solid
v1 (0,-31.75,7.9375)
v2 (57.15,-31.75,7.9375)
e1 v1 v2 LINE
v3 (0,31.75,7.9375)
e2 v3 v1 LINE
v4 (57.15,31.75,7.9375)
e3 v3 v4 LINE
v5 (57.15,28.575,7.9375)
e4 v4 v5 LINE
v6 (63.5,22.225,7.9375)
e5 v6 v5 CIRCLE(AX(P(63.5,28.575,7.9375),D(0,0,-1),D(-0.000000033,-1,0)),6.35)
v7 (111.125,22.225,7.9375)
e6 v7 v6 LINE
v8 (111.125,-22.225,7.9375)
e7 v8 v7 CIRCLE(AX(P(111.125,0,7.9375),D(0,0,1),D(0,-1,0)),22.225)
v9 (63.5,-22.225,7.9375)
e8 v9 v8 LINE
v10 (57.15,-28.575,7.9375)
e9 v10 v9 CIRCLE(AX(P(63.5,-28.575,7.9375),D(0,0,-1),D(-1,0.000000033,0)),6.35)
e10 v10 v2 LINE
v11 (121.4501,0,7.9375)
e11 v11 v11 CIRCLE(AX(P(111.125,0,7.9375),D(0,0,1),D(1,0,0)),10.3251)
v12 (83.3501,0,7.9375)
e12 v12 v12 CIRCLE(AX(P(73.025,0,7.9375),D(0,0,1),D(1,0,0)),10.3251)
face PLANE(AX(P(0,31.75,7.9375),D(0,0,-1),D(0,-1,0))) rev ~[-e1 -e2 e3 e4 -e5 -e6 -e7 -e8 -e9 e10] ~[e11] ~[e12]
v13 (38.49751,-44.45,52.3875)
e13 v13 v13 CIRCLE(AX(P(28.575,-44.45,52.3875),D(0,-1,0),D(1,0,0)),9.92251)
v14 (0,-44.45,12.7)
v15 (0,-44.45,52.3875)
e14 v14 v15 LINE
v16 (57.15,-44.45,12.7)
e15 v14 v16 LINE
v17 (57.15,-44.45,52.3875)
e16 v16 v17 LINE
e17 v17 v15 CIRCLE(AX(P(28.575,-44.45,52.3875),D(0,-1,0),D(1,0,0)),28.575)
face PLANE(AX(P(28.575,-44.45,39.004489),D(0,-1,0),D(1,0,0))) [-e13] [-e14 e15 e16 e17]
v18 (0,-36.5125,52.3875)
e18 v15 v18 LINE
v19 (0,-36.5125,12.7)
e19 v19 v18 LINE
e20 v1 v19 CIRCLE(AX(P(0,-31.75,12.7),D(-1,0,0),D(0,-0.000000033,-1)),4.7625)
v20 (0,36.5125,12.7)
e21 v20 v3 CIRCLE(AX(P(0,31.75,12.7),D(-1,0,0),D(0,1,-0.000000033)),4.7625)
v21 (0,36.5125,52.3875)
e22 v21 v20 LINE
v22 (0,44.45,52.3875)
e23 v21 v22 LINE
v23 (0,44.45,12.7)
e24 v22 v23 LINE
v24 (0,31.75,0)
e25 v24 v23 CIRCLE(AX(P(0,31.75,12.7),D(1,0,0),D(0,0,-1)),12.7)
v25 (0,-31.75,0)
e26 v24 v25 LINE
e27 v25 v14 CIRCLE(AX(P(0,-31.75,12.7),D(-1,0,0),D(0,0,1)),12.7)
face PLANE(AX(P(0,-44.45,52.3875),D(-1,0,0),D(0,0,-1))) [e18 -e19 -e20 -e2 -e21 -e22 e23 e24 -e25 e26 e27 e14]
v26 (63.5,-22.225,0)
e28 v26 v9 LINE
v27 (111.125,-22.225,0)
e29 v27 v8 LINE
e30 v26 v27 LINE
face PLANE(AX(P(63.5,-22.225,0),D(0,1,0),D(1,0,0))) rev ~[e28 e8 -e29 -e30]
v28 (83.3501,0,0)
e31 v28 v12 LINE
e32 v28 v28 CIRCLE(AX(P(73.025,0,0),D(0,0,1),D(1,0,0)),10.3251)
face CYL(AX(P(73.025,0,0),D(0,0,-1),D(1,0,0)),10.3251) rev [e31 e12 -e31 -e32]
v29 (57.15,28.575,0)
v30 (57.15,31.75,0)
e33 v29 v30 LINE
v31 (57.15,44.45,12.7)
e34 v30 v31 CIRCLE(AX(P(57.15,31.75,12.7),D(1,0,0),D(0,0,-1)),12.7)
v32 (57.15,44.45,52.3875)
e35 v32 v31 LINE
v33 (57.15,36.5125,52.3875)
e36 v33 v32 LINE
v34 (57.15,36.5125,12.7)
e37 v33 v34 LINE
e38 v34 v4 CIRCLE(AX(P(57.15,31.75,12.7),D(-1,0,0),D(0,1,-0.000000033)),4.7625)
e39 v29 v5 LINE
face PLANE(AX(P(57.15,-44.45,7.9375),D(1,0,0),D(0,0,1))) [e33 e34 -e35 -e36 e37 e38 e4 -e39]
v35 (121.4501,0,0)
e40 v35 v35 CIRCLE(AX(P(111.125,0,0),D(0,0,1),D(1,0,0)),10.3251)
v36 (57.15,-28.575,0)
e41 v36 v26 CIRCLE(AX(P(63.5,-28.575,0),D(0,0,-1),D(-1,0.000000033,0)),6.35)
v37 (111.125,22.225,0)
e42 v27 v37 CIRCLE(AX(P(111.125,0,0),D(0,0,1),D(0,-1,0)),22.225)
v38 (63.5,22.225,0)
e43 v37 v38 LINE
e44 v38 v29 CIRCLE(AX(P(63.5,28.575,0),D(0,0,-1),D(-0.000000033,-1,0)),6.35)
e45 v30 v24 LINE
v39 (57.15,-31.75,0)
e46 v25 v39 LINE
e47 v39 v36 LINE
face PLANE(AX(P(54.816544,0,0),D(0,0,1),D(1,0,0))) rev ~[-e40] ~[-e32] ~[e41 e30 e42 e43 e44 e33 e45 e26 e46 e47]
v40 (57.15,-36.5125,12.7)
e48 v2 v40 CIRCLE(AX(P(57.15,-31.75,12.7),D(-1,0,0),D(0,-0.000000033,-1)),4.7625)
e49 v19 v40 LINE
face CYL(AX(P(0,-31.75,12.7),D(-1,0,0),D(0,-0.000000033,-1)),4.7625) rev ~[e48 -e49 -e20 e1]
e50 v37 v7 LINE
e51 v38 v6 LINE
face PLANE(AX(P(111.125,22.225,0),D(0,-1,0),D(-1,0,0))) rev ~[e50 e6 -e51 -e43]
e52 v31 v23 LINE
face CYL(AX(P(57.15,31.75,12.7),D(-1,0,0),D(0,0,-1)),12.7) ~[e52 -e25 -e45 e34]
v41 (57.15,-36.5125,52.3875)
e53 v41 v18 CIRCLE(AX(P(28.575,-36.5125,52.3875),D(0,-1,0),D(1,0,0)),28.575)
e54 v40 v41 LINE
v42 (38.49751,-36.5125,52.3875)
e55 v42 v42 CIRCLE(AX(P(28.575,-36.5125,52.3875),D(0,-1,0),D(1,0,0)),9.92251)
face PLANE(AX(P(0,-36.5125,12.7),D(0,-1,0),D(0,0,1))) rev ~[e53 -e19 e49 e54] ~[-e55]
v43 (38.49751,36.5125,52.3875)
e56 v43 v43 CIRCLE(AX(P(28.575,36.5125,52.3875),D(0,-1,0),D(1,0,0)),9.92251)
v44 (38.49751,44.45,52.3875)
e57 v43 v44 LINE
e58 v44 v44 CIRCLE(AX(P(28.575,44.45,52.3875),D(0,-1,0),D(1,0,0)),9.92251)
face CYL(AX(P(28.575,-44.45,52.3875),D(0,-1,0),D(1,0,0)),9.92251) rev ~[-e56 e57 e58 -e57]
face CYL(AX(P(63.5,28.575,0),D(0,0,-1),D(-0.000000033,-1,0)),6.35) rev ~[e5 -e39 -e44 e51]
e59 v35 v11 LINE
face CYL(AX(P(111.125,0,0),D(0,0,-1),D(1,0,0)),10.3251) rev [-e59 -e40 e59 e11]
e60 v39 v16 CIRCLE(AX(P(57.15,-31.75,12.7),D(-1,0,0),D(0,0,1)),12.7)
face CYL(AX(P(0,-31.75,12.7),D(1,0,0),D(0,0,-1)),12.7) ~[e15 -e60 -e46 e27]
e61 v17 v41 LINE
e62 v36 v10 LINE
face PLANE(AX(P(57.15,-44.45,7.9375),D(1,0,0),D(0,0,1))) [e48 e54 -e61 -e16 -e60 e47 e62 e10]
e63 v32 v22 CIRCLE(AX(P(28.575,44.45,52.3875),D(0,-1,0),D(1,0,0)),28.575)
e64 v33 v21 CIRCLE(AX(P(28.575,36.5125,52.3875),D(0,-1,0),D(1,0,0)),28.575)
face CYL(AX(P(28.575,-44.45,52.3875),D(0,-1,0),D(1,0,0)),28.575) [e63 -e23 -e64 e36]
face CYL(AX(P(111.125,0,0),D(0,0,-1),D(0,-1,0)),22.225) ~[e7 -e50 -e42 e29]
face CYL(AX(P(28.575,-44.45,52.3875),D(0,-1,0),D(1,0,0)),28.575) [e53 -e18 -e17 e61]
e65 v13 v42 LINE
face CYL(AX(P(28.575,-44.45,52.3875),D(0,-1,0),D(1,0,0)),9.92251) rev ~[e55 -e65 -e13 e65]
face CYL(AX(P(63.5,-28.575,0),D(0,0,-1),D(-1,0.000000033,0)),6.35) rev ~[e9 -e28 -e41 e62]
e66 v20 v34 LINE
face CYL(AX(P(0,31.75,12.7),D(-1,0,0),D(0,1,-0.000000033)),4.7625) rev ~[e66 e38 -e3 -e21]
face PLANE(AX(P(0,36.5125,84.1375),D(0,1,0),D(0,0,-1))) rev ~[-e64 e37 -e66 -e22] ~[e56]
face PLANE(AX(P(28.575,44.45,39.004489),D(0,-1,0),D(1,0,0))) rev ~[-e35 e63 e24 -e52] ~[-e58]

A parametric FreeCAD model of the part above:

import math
import FreeCAD as App
import Part
import Sketcher
Q = App.Units.Quantity


def edges_at(feature, points):
    """Names of the edges that pass closest to the given points."""
    edges = feature.Shape.Edges
    near = lambda p: min(range(len(edges)), key=lambda i: edges[i].distToShape(Part.Vertex(*p))[0])
    return sorted({f"Edge{near(p) + 1}" for p in points})

doc = App.newDocument("Part")
body = doc.addObject("PartDesign::Body", "Body")

# Sketch on XY plane
sketch1 = body.newObject("Sketcher::SketchObject", "Sketch")
sketch1.AttachmentSupport = (doc.getObject("XY_Plane"), [""])
sketch1.MapMode = "FlatFace"
sketch1.addGeometry(Part.LineSegment(App.Vector(0, 44, 0), App.Vector(0, -44, 0)), False)
sketch1.addGeometry(Part.LineSegment(App.Vector(0, -44, 0), App.Vector(57, -44, 0)), False)
sketch1.addGeometry(Part.LineSegment(App.Vector(57, -44, 0), App.Vector(57, -29, 0)), False)
sketch1.addGeometry(Part.ArcOfCircle(Part.Circle(App.Vector(64, -29, 0), App.Vector(0, 0, 1), 6), math.radians(90), math.radians(180)), False)
sketch1.addGeometry(Part.LineSegment(App.Vector(64, -22, 0), App.Vector(111, -22, 0)), False)
sketch1.addGeometry(Part.ArcOfCircle(Part.Circle(App.Vector(111, 0, 0), App.Vector(0, 0, 1), 22), math.radians(-90), math.radians(90)), False)
sketch1.addGeometry(Part.LineSegment(App.Vector(111, 22, 0), App.Vector(64, 22, 0)), False)
sketch1.addGeometry(Part.ArcOfCircle(Part.Circle(App.Vector(64, 29, 0), App.Vector(0, 0, 1), 6), math.radians(-180), math.radians(-90)), False)
sketch1.addGeometry(Part.LineSegment(App.Vector(57, 29, 0), App.Vector(57, 44, 0)), False)
sketch1.addGeometry(Part.LineSegment(App.Vector(57, 44, 0), App.Vector(0, 44, 0)), False)
sketch1.addGeometry(Part.Circle(App.Vector(73, 0, 0), App.Vector(0, 0, 1), 10), False)
sketch1.addGeometry(Part.Circle(App.Vector(111, 0, 0), App.Vector(0, 0, 1), 10), False)
sketch1.addConstraint(Sketcher.Constraint("Coincident", 0, 2, 1, 1))
sketch1.addConstraint(Sketcher.Constraint("Coincident", 1, 2, 2, 1))
sketch1.addConstraint(Sketcher.Constraint("Tangent", 2, 2, 3, 2))
sketch1.addConstraint(Sketcher.Constraint("Tangent", 3, 1, 4, 1))
sketch1.addConstraint(Sketcher.Constraint("Tangent", 4, 2, 5, 1))
sketch1.addConstraint(Sketcher.Constraint("Tangent", 5, 2, 6, 1))
sketch1.addConstraint(Sketcher.Constraint("Tangent", 6, 2, 7, 2))
sketch1.addConstraint(Sketcher.Constraint("Tangent", 7, 1, 8, 1))
sketch1.addConstraint(Sketcher.Constraint("Coincident", 8, 2, 9, 1))
sketch1.addConstraint(Sketcher.Constraint("Coincident", 9, 2, 0, 1))
sketch1.addConstraint(Sketcher.Constraint("Vertical", 0))
sketch1.addConstraint(Sketcher.Constraint("Horizontal", 1))
sketch1.addConstraint(Sketcher.Constraint("Vertical", 2))
sketch1.addConstraint(Sketcher.Constraint("Horizontal", 4))
sketch1.addConstraint(Sketcher.Constraint("Horizontal", 6))
sketch1.addConstraint(Sketcher.Constraint("Vertical", 8))
sketch1.addConstraint(Sketcher.Constraint("Horizontal", 9))
sketch1.addConstraint(Sketcher.Constraint("Coincident", 11, 3, 5, 3))
sketch1.addConstraint(Sketcher.Constraint("Equal", 3, 7))
sketch1.addConstraint(Sketcher.Constraint("Equal", 10, 11))
sketch1.addConstraint(Sketcher.Constraint("Symmetric", 0, 2, 9, 2, -1, 1))
sketch1.addConstraint(Sketcher.Constraint("Symmetric", 3, 3, 7, 3, -1))
sketch1.addConstraint(Sketcher.Constraint("PointOnObject", 10, 3, -1))
sketch1.addConstraint(Sketcher.Constraint("Radius", 3, Q("0.25 in")))
sketch1.addConstraint(Sketcher.Constraint("Diameter", 10, Q("0.813 in")))
sketch1.addConstraint(Sketcher.Constraint("DistanceY", 0, 2, 0, 1, Q("3.5 in")))
sketch1.addConstraint(Sketcher.Constraint("Radius", 5, Q("0.875 in")))
sketch1.addConstraint(Sketcher.Constraint("DistanceX", 1, 1, 1, 2, Q("2.25 in")))
sketch1.addConstraint(Sketcher.Constraint("DistanceX", 10, 3, 5, 3, Q("1.5 in")))
sketch1.addConstraint(Sketcher.Constraint("DistanceX", 4, 1, 4, 2, Q("1.875 in")))
pad1 = body.newObject("PartDesign::Pad", "Pad")
pad1.Profile = sketch1
pad1.Length = Q("0.3125 in")

# Sketch on XZ plane
sketch2 = body.newObject("Sketcher::SketchObject", "Sketch001")
sketch2.AttachmentSupport = (doc.getObject("XZ_Plane"), [""])
sketch2.MapMode = "FlatFace"
sketch2.AttachmentOffset = App.Placement(App.Vector(0, 0, 1.75 * 25.4), App.Rotation())
sketch2.addGeometry(Part.LineSegment(App.Vector(0, 52, 0), App.Vector(0, 8, 0)), False)
sketch2.addGeometry(Part.LineSegment(App.Vector(0, 8, 0), App.Vector(57, 8, 0)), False)
sketch2.addGeometry(Part.LineSegment(App.Vector(57, 8, 0), App.Vector(57, 52, 0)), False)
sketch2.addGeometry(Part.ArcOfCircle(Part.Circle(App.Vector(29, 52, 0), App.Vector(0, 0, 1), 29), math.radians(0), math.radians(180)), False)
sketch2.addGeometry(Part.Circle(App.Vector(29, 52, 0), App.Vector(0, 0, 1), 10), False)
sketch2.addConstraint(Sketcher.Constraint("Coincident", 0, 2, 1, 1))
sketch2.addConstraint(Sketcher.Constraint("Coincident", 1, 2, 2, 1))
sketch2.addConstraint(Sketcher.Constraint("Tangent", 2, 2, 3, 1))
sketch2.addConstraint(Sketcher.Constraint("Tangent", 3, 2, 0, 1))
sketch2.addConstraint(Sketcher.Constraint("Vertical", 0))
sketch2.addConstraint(Sketcher.Constraint("Horizontal", 1))
sketch2.addConstraint(Sketcher.Constraint("Vertical", 2))
sketch2.addConstraint(Sketcher.Constraint("Coincident", 4, 3, 3, 3))
sketch2.addConstraint(Sketcher.Constraint("PointOnObject", 0, 2, -2))
sketch2.addConstraint(Sketcher.Constraint("Radius", 3, Q("1.125 in")))
sketch2.addConstraint(Sketcher.Constraint("Diameter", 4, Q("0.7813 in")))
sketch2.addConstraint(Sketcher.Constraint("DistanceY", 0, 2, 0, 1, Q("1.75 in")))
sketch2.addConstraint(Sketcher.Constraint("DistanceY", -1, 1, 3, 3, Q("2.0625 in")))
pad2 = body.newObject("PartDesign::Pad", "Pad001")
pad2.Profile = sketch2
pad2.Length = Q("3.5 in")
pad2.Reversed = True

# Sketch on YZ plane
sketch3 = body.newObject("Sketcher::SketchObject", "Sketch002")
sketch3.AttachmentSupport = (doc.getObject("YZ_Plane"), [""])
sketch3.MapMode = "FlatFace"
sketch3.addGeometry(Part.ArcOfCircle(Part.Circle(App.Vector(31.7, 12.7, 0), App.Vector(0, 0, 1), 4.8), math.radians(-90), math.radians(0)), False)
sketch3.addGeometry(Part.LineSegment(App.Vector(31.8, 7.9, 0), App.Vector(-31.8, 7.9, 0)), False)
sketch3.addGeometry(Part.ArcOfCircle(Part.Circle(App.Vector(-31.7, 12.7, 0), App.Vector(0, 0, 1), 4.8), math.radians(-180), math.radians(-90)), False)
sketch3.addGeometry(Part.LineSegment(App.Vector(-36.5, 12.7, 0), App.Vector(-36.5, 84.1, 0)), False)
sketch3.addGeometry(Part.LineSegment(App.Vector(-36.5, 84.1, 0), App.Vector(36.5, 84.1, 0)), False)
sketch3.addGeometry(Part.LineSegment(App.Vector(36.5, 84.1, 0), App.Vector(36.5, 12.7, 0)), False)
sketch3.addConstraint(Sketcher.Constraint("Tangent", 0, 1, 1, 1))
sketch3.addConstraint(Sketcher.Constraint("Tangent", 1, 2, 2, 2))
sketch3.addConstraint(Sketcher.Constraint("Tangent", 2, 1, 3, 1))
sketch3.addConstraint(Sketcher.Constraint("Coincident", 3, 2, 4, 1))
sketch3.addConstraint(Sketcher.Constraint("Coincident", 4, 2, 5, 1))
sketch3.addConstraint(Sketcher.Constraint("Tangent", 5, 2, 0, 2))
sketch3.addConstraint(Sketcher.Constraint("Horizontal", 1))
sketch3.addConstraint(Sketcher.Constraint("Vertical", 3))
sketch3.addConstraint(Sketcher.Constraint("Horizontal", 4))
sketch3.addConstraint(Sketcher.Constraint("Vertical", 5))
sketch3.addConstraint(Sketcher.Constraint("Equal", 0, 2))
sketch3.addConstraint(Sketcher.Constraint("DistanceX", 1, 2, 1, 1, Q("2.5 in")))
sketch3.addConstraint(Sketcher.Constraint("Radius", 0, Q("0.1875 in")))
sketch3.addConstraint(Sketcher.Constraint("DistanceY", 1, 2, 3, 2, Q("3 in")))
sketch3.addConstraint(Sketcher.Constraint("DistanceY", -1, 1, 0, 3, Q("0.5 in")))
sketch3.addConstraint(Sketcher.Constraint("DistanceX", -1, 1, 0, 3, Q("1.25 in")))
pocket1 = body.newObject("PartDesign::Pocket", "Pocket")
pocket1.Profile = sketch3
pocket1.Length = Q("2.25 in")
pocket1.Reversed = True
doc.recompute()

fillet = body.newObject("PartDesign::Fillet", "Fillet")
fillet.Base = (pocket1, edges_at(pocket1, [(28.575, 44.45, 0)]))
fillet.Radius = Q("0.5 in")
doc.recompute()

fillet2 = body.newObject("PartDesign::Fillet", "Fillet001")
fillet2.Base = (fillet, edges_at(fillet, [(28.575, -44.45, 0)]))
fillet2.Radius = Q("0.5 in")

doc.recompute()
